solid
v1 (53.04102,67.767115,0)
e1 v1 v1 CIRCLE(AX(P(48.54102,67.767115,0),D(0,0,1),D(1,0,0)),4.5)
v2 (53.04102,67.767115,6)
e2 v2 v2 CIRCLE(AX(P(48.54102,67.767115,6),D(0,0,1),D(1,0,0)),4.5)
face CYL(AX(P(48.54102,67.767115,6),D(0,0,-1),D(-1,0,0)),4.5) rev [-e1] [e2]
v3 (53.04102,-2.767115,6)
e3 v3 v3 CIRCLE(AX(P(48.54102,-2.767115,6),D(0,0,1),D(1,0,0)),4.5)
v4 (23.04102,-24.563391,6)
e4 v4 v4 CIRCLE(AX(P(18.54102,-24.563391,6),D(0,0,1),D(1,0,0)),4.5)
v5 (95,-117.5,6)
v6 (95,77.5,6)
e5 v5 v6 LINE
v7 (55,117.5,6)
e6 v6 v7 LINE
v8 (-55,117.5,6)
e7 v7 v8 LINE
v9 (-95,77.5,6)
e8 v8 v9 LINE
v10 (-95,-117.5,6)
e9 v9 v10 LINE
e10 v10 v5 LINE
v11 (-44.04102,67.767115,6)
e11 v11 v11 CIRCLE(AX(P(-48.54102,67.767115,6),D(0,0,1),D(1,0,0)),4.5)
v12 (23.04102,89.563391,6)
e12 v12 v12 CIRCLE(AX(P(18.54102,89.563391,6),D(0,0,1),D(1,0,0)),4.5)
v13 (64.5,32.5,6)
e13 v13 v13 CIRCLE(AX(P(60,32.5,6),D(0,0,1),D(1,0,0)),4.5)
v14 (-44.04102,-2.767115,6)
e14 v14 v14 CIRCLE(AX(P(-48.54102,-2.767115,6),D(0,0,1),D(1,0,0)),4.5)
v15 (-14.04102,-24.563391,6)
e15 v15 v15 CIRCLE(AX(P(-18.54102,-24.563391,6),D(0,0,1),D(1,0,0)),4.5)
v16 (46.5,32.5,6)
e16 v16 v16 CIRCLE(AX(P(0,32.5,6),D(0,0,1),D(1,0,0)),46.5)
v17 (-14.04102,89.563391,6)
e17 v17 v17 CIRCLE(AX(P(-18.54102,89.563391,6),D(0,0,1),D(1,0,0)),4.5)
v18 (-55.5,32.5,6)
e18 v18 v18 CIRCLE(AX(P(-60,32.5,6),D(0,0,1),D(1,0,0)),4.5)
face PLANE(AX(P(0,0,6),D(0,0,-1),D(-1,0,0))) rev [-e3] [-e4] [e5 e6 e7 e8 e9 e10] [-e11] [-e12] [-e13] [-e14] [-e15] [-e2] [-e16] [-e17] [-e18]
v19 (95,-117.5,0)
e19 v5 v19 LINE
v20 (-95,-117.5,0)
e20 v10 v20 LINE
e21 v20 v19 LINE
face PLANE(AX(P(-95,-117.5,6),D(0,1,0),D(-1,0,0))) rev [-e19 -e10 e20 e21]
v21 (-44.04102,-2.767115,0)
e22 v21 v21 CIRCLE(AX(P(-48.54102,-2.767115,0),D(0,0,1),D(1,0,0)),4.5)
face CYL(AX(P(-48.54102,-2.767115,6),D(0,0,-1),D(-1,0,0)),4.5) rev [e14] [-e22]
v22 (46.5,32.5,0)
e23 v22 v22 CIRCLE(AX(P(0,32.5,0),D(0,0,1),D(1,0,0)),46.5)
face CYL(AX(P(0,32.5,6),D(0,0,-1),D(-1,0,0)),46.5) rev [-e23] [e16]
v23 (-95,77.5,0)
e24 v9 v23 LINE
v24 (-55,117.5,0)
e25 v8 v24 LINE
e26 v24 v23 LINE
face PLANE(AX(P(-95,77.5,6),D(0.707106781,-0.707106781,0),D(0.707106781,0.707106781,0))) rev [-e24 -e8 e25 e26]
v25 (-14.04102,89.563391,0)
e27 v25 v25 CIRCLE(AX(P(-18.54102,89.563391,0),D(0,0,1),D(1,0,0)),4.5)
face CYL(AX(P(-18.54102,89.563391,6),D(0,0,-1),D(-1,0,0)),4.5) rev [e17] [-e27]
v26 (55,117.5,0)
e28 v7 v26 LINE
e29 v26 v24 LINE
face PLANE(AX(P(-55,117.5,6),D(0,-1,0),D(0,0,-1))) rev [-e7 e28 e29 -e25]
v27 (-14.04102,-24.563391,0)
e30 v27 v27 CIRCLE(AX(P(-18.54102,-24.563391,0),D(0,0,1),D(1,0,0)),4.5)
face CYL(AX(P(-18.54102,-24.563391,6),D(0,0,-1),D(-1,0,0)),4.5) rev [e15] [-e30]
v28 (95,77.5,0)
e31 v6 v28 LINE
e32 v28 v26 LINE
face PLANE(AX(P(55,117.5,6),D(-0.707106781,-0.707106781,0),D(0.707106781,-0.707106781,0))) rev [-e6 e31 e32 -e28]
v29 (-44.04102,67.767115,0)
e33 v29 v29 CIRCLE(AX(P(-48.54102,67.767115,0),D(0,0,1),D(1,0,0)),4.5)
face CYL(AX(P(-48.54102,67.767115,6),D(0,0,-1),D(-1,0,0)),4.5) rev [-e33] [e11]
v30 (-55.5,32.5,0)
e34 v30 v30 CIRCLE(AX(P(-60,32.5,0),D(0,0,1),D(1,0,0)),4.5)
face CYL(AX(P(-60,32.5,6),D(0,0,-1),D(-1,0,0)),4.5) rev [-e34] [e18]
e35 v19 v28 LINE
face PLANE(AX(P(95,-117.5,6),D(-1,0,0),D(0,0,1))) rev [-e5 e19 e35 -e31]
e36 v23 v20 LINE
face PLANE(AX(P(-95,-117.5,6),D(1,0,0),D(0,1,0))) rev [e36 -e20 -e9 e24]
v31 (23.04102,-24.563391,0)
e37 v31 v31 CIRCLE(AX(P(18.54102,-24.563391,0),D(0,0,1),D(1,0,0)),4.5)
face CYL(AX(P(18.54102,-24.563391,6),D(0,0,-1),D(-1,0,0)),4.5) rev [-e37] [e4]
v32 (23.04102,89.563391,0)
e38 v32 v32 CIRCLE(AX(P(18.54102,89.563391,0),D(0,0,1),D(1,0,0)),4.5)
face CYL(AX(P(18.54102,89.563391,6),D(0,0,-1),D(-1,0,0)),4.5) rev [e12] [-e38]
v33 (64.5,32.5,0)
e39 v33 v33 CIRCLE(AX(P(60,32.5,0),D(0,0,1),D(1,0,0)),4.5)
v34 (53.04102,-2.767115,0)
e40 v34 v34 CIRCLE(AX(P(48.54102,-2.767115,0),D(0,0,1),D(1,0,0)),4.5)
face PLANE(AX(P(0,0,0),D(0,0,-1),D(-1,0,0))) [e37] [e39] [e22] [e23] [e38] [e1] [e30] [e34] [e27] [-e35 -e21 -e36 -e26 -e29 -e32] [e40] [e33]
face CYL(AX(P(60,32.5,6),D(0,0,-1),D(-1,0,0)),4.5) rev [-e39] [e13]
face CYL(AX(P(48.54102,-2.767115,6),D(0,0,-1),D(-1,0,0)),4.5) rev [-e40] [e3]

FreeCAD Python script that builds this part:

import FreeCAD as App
import Part
import Sketcher

V = App.Vector

doc = App.newDocument("Part")
body = doc.addObject("PartDesign::Body", "Body")

# Sketch on XY plane
sketch1 = doc.addObject("Sketcher::SketchObject", "Sketch")
body.addObject(sketch1)
sketch1.AttachmentSupport = (doc.XY_Plane, [""])
sketch1.MapMode = "FlatFace"
sketch1.addGeometry(Part.LineSegment(V(-55, 117.5, 0), V(-95, 77.5, 0)), False)
sketch1.addGeometry(Part.LineSegment(V(-95, 77.5, 0), V(-95, -117.5, 0)), False)
sketch1.addGeometry(Part.LineSegment(V(-95, -117.5, 0), V(95, -117.5, 0)), False)
sketch1.addGeometry(Part.LineSegment(V(95, -117.5, 0), V(95, 77.5, 0)), False)
sketch1.addGeometry(Part.LineSegment(V(95, 77.5, 0), V(55, 117.5, 0)), False)
sketch1.addGeometry(Part.LineSegment(V(55, 117.5, 0), V(-55, 117.5, 0)), False)
sketch1.addGeometry(Part.Circle(V(48.5, -2.8, 0), V(0, 0, 1), 4.5), False)
sketch1.addGeometry(Part.Circle(V(18.5, -24.6, 0), V(0, 0, 1), 4.5), False)
sketch1.addGeometry(Part.Circle(V(-18.5, -24.6, 0), V(0, 0, 1), 4.5), False)
sketch1.addGeometry(Part.Circle(V(-48.5, -2.8, 0), V(0, 0, 1), 4.5), False)
sketch1.addGeometry(Part.Circle(V(0, 32.5, 0), V(0, 0, 1), 46.5), False)
sketch1.addGeometry(Part.Circle(V(60, 32.5, 0), V(0, 0, 1), 4.5), False)
sketch1.addGeometry(Part.Circle(V(48.5, 67.8, 0), V(0, 0, 1), 4.5), False)
sketch1.addGeometry(Part.Circle(V(18.5, 89.6, 0), V(0, 0, 1), 4.5), False)
sketch1.addGeometry(Part.Circle(V(-60, 32.5, 0), V(0, 0, 1), 4.5), False)
sketch1.addGeometry(Part.Circle(V(-18.5, 89.6, 0), V(0, 0, 1), 4.5), False)
sketch1.addGeometry(Part.Circle(V(-48.5, 67.8, 0), V(0, 0, 1), 4.5), False)
sketch1.addConstraint(Sketcher.Constraint("Coincident", 0, 2, 1, 1))
sketch1.addConstraint(Sketcher.Constraint("Coincident", 1, 2, 2, 1))
sketch1.addConstraint(Sketcher.Constraint("Coincident", 2, 2, 3, 1))
sketch1.addConstraint(Sketcher.Constraint("Coincident", 3, 2, 4, 1))
sketch1.addConstraint(Sketcher.Constraint("Coincident", 4, 2, 5, 1))
sketch1.addConstraint(Sketcher.Constraint("Coincident", 5, 2, 0, 1))
sketch1.addConstraint(Sketcher.Constraint("Vertical", 1))
sketch1.addConstraint(Sketcher.Constraint("Horizontal", 2))
sketch1.addConstraint(Sketcher.Constraint("Vertical", 3))
sketch1.addConstraint(Sketcher.Constraint("Horizontal", 5))
sketch1.addConstraint(Sketcher.Constraint("Equal", 6, 7))
sketch1.addConstraint(Sketcher.Constraint("Equal", 7, 8))
sketch1.addConstraint(Sketcher.Constraint("Equal", 8, 9))
sketch1.addConstraint(Sketcher.Constraint("Equal", 9, 11))
sketch1.addConstraint(Sketcher.Constraint("Equal", 11, 12))
sketch1.addConstraint(Sketcher.Constraint("Equal", 12, 13))
sketch1.addConstraint(Sketcher.Constraint("Equal", 13, 14))
sketch1.addConstraint(Sketcher.Constraint("Equal", 14, 15))
sketch1.addConstraint(Sketcher.Constraint("Equal", 15, 16))
sketch1.addConstraint(Sketcher.Constraint("Symmetric", 7, 3, 8, 3, -2))
sketch1.addConstraint(Sketcher.Constraint("Symmetric", 6, 3, 9, 3, -2))
sketch1.addConstraint(Sketcher.Constraint("Symmetric", 11, 3, 14, 3, -2))
sketch1.addConstraint(Sketcher.Constraint("Symmetric", 13, 3, 15, 3, -2))
sketch1.addConstraint(Sketcher.Constraint("Symmetric", 12, 3, 16, 3, -2))
sketch1.addConstraint(Sketcher.Constraint("Symmetric", 0, 2, 3, 2, -2))
sketch1.addConstraint(Sketcher.Constraint("PointOnObject", 10, 3, -2))
sketch1.addConstraint(Sketcher.Constraint("Perpendicular", 0, 4))
sketch1.addConstraint(Sketcher.Constraint("Horizontal", 10, 3, 11, 3))
sketch1.addConstraint(Sketcher.Constraint("Vertical", 6, 3, 12, 3))
sketch1.addConstraint(Sketcher.Constraint("Vertical", 7, 3, 13, 3))
sketch1.addConstraint(Sketcher.Constraint("Equal", 0, 4))
sketch1.addConstraint(Sketcher.Constraint("Diameter", 6, 9.0))
sketch1.addConstraint(Sketcher.Constraint("Diameter", 10, 93.0))
sketch1.addConstraint(Sketcher.Constraint("DistanceX", 2, 1, 2, 2, 190.0))
sketch1.addConstraint(Sketcher.Constraint("DistanceX", 5, 2, 5, 1, 110.0))
sketch1.addConstraint(Sketcher.Constraint("DistanceY", 1, 2, 1, 1, 195.0))
sketch1.addConstraint(Sketcher.Constraint("DistanceX", -1, 1, 11, 3, 60.0))
sketch1.addConstraint(Sketcher.Constraint("DistanceX", 7, 3, 6, 3, 30.0))
sketch1.addConstraint(Sketcher.Constraint("DistanceY", 14, 3, 0, 2, 45.0))
sketch1.addConstraint(Sketcher.Constraint("DistanceY", -1, 1, 10, 3, 32.5))
sketch1.addConstraint(Sketcher.Constraint("DistanceX", -1, 1, 6, 3, 48.54102))
sketch1.addConstraint(Sketcher.Constraint("DistanceY", 7, 3, -1, 1, 24.563391))
sketch1.addConstraint(Sketcher.Constraint("DistanceY", -1, 1, 13, 3, 89.563391))
sketch1.addConstraint(Sketcher.Constraint("DistanceY", 6, 3, 12, 3, 70.53423))
sketch1.addConstraint(Sketcher.Constraint("DistanceY", 6, 3, -1, 1, 2.767115))
pad1 = doc.addObject("PartDesign::Pad", "Pad")
body.addObject(pad1)
pad1.Profile = sketch1
pad1.Length = 6

doc.recompute()
